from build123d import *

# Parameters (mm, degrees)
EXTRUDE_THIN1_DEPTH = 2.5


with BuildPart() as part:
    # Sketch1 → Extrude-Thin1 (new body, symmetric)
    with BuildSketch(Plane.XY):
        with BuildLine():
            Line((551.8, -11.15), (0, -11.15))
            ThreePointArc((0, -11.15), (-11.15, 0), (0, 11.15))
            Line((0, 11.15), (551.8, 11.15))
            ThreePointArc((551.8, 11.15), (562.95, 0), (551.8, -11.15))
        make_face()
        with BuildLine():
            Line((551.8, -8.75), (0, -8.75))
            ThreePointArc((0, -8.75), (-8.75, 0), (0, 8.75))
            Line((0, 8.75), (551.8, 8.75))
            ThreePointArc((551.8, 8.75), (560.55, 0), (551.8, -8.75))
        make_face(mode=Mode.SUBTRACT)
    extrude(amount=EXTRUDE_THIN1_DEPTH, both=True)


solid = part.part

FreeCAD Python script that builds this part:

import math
import FreeCAD as App
import Part
import Sketcher

doc = App.newDocument("Part")
body = doc.addObject("PartDesign::Body", "Body")

sketch1 = doc.addObject("Sketcher::SketchObject", "Sketch")
body.addObject(sketch1)
sketch1.AttachmentSupport = (doc.XY_Plane, [""])
sketch1.MapMode = "FlatFace"
sketch1.addGeometry([
    Part.LineSegment(App.Vector(0, -11.15, 0), App.Vector(551.8, -11.15, 0)),
    Part.ArcOfCircle(Part.Circle(App.Vector(551.8, 0, 0), App.Vector(0, 0, 1), 11.15), math.radians(-90), math.radians(90)),
    Part.LineSegment(App.Vector(551.8, 11.15, 0), App.Vector(0, 11.15, 0)),
    Part.ArcOfCircle(Part.Circle(App.Vector(0, 0, 0), App.Vector(0, 0, 1), 11.15), math.radians(90), math.radians(270)),
    Part.LineSegment(App.Vector(551.8, -8.75, 0), App.Vector(0, -8.75, 0)),
    Part.ArcOfCircle(Part.Circle(App.Vector(0, 0, 0), App.Vector(0, 0, 1), 8.75), math.radians(90), math.radians(270)),
    Part.LineSegment(App.Vector(0, 8.75, 0), App.Vector(551.8, 8.75, 0)),
    Part.ArcOfCircle(Part.Circle(App.Vector(551.8, 0, 0), App.Vector(0, 0, 1), 8.75), math.radians(-90), math.radians(90)),
], False)
sketch1.addConstraint([
    Sketcher.Constraint("Tangent", 0, 2, 1, 1),
    Sketcher.Constraint("Tangent", 1, 2, 2, 1),
    Sketcher.Constraint("Tangent", 2, 2, 3, 1),
    Sketcher.Constraint("Tangent", 3, 2, 0, 1),
    Sketcher.Constraint("Tangent", 4, 2, 5, 2),
    Sketcher.Constraint("Tangent", 5, 1, 6, 1),
    Sketcher.Constraint("Tangent", 6, 2, 7, 2),
    Sketcher.Constraint("Tangent", 7, 1, 4, 1),
    Sketcher.Constraint("Horizontal", 0),
    Sketcher.Constraint("Horizontal", 2),
    Sketcher.Constraint("Horizontal", 4),
    Sketcher.Constraint("Horizontal", 6),
    Sketcher.Constraint("Coincident", 3, 3, -1, 1),
    Sketcher.Constraint("Coincident", 5, 3, -1, 1),
    Sketcher.Constraint("Vertical", 7, 3, 0, 2),
    Sketcher.Constraint("Radius", 1, 11.15),
    Sketcher.Constraint("Radius", 5, 8.75),
    Sketcher.Constraint("DistanceX", 0, 1, 0, 2, 551.8),
])
pad1 = doc.addObject("PartDesign::Pad", "Pad")
body.addObject(pad1)
pad1.Profile = sketch1
pad1.Length = 5
pad1.Midplane = True

doc.recompute()
